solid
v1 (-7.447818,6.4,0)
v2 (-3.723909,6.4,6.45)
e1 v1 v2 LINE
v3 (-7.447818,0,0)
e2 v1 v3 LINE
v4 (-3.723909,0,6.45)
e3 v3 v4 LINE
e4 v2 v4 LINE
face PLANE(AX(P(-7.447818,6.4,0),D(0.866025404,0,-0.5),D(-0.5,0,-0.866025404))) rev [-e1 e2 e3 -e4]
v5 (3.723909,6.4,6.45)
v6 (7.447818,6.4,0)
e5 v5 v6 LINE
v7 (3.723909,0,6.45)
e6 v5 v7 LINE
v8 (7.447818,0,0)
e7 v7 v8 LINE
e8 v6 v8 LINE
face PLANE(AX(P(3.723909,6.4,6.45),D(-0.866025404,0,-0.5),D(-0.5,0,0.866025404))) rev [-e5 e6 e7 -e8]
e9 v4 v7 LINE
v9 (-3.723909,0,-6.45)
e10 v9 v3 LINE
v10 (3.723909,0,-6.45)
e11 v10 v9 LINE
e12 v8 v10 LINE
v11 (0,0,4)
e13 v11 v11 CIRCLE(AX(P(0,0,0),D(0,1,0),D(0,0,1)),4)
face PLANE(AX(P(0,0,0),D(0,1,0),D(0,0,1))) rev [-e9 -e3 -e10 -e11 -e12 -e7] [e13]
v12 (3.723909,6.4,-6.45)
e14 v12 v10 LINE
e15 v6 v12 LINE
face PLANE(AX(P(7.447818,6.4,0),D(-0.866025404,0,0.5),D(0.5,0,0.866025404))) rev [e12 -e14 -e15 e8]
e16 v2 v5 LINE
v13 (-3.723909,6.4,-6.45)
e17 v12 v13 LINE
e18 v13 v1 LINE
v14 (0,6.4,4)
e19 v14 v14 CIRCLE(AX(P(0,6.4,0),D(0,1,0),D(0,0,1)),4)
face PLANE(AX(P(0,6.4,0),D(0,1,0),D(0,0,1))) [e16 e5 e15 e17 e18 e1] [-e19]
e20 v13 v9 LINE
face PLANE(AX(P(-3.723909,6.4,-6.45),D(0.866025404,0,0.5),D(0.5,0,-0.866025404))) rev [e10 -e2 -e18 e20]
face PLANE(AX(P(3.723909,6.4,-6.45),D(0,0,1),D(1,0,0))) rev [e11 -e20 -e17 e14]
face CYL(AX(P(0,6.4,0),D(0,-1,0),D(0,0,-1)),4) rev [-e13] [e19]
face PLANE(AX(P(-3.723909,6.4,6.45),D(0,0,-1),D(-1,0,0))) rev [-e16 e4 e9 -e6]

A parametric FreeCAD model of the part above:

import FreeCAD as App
import Part
import Sketcher

V = App.Vector
Q = App.Units.Quantity


def add_polygon(sketch, points):
    """Adds a closed chain of lines whose ends are joined by coincident constraints."""
    first, n = sketch.GeometryCount, len(points)
    for a, b in zip(points, points[1:] + points[:1]):
        sketch.addGeometry(Part.LineSegment(App.Vector(*a, 0), App.Vector(*b, 0)), False)
    for i in range(n):
        sketch.addConstraint(Sketcher.Constraint("Coincident", first + i, 2, first + (i + 1) % n, 1))

doc = App.newDocument("Part")
body = doc.addObject("PartDesign::Body", "Body")

# Sketch on XZ plane
sketch1 = body.newObject("Sketcher::SketchObject", "Sketch")
sketch1.AttachmentSupport = (doc.getObject("XZ_Plane"), [""])
sketch1.MapMode = "FlatFace"
add_polygon(sketch1, [(3.723909, -6.45), (-3.723909, -6.45), (-7.447818, 0), (-3.723909, 6.45), (3.723909, 6.45), (7.447818, 0)])  # lines 0-5
sketch1.addGeometry(Part.Circle(V(0, 0, 0), V(0, 0, 1), 4), False)  # 6
sketch1.addConstraint([
    Sketcher.Constraint("Horizontal", 0),
    Sketcher.Constraint("Horizontal", 3),
    Sketcher.Constraint("Coincident", 6, 3, -1, 1),
    Sketcher.Constraint("Symmetric", 0, 2, 3, 2, -1, 1),
    Sketcher.Constraint("Symmetric", 1, 2, 4, 2, -1, 1),
    Sketcher.Constraint("PointOnObject", 1, 2, -1),
    Sketcher.Constraint("Parallel", 2, 5),
    Sketcher.Constraint("Vertical", 0, 2, 2, 2),
    Sketcher.Constraint("Diameter", 6, Q("8 mm")),
    Sketcher.Constraint("Angle", 1, Q("120 deg")),
    Sketcher.Constraint("DistanceY", 0, 2, 2, 2, Q("12.9 mm")),
    Sketcher.Constraint("DistanceX", 0, 2, 0, 1, Q("7.447818 mm")),
])
pad1 = body.newObject("PartDesign::Pad", "Pad")
pad1.Profile = sketch1
pad1.Length = 6.4
pad1.Reversed = True

doc.recompute()
